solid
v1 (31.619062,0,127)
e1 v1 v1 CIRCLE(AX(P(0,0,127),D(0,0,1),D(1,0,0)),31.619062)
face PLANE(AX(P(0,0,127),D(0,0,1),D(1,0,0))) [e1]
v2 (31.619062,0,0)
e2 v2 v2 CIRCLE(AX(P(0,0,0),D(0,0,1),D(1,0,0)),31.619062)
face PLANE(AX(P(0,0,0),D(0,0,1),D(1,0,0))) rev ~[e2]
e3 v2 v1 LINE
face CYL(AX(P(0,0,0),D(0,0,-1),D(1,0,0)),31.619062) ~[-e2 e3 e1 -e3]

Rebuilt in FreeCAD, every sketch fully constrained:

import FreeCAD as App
import Part
import Sketcher

V = App.Vector
Q = App.Units.Quantity

doc = App.newDocument("Part")
body = doc.addObject("PartDesign::Body", "Body")

# Sketch on XY plane
sketch1 = doc.addObject("Sketcher::SketchObject", "Sketch")
body.addObject(sketch1)
sketch1.AttachmentSupport = (doc.XY_Plane, [""])
sketch1.MapMode = "FlatFace"
sketch1.addGeometry(Part.Circle(V(0, 0, 0), V(0, 0, 1), 32), False)
sketch1.addConstraint([
    Sketcher.Constraint("Coincident", 0, 3, -1, 1),
    Sketcher.Constraint("Diameter", 0, 63.238124),
])
pad1 = doc.addObject("PartDesign::Pad", "Pad")
body.addObject(pad1)
pad1.Profile = sketch1
pad1.Length = Q("5 in")

# Sketch on XY plane
sketch2 = doc.addObject("Sketcher::SketchObject", "Sketch001")
body.addObject(sketch2)
sketch2.AttachmentSupport = (doc.XY_Plane, [""])
sketch2.MapMode = "FlatFace"
sketch2.addGeometry(Part.Circle(V(0, 0, 0), V(0, 0, 1), 26), False)
sketch2.addConstraint([
    Sketcher.Constraint("Coincident", 0, 3, -1, 1),
    Sketcher.Constraint("Diameter", 0, 52.544328),
])
pocket1 = doc.addObject("PartDesign::Pocket", "Pocket")
body.addObject(pocket1)
pocket1.Profile = sketch2
pocket1.Length = Q("4.75 in")

doc.recompute()
